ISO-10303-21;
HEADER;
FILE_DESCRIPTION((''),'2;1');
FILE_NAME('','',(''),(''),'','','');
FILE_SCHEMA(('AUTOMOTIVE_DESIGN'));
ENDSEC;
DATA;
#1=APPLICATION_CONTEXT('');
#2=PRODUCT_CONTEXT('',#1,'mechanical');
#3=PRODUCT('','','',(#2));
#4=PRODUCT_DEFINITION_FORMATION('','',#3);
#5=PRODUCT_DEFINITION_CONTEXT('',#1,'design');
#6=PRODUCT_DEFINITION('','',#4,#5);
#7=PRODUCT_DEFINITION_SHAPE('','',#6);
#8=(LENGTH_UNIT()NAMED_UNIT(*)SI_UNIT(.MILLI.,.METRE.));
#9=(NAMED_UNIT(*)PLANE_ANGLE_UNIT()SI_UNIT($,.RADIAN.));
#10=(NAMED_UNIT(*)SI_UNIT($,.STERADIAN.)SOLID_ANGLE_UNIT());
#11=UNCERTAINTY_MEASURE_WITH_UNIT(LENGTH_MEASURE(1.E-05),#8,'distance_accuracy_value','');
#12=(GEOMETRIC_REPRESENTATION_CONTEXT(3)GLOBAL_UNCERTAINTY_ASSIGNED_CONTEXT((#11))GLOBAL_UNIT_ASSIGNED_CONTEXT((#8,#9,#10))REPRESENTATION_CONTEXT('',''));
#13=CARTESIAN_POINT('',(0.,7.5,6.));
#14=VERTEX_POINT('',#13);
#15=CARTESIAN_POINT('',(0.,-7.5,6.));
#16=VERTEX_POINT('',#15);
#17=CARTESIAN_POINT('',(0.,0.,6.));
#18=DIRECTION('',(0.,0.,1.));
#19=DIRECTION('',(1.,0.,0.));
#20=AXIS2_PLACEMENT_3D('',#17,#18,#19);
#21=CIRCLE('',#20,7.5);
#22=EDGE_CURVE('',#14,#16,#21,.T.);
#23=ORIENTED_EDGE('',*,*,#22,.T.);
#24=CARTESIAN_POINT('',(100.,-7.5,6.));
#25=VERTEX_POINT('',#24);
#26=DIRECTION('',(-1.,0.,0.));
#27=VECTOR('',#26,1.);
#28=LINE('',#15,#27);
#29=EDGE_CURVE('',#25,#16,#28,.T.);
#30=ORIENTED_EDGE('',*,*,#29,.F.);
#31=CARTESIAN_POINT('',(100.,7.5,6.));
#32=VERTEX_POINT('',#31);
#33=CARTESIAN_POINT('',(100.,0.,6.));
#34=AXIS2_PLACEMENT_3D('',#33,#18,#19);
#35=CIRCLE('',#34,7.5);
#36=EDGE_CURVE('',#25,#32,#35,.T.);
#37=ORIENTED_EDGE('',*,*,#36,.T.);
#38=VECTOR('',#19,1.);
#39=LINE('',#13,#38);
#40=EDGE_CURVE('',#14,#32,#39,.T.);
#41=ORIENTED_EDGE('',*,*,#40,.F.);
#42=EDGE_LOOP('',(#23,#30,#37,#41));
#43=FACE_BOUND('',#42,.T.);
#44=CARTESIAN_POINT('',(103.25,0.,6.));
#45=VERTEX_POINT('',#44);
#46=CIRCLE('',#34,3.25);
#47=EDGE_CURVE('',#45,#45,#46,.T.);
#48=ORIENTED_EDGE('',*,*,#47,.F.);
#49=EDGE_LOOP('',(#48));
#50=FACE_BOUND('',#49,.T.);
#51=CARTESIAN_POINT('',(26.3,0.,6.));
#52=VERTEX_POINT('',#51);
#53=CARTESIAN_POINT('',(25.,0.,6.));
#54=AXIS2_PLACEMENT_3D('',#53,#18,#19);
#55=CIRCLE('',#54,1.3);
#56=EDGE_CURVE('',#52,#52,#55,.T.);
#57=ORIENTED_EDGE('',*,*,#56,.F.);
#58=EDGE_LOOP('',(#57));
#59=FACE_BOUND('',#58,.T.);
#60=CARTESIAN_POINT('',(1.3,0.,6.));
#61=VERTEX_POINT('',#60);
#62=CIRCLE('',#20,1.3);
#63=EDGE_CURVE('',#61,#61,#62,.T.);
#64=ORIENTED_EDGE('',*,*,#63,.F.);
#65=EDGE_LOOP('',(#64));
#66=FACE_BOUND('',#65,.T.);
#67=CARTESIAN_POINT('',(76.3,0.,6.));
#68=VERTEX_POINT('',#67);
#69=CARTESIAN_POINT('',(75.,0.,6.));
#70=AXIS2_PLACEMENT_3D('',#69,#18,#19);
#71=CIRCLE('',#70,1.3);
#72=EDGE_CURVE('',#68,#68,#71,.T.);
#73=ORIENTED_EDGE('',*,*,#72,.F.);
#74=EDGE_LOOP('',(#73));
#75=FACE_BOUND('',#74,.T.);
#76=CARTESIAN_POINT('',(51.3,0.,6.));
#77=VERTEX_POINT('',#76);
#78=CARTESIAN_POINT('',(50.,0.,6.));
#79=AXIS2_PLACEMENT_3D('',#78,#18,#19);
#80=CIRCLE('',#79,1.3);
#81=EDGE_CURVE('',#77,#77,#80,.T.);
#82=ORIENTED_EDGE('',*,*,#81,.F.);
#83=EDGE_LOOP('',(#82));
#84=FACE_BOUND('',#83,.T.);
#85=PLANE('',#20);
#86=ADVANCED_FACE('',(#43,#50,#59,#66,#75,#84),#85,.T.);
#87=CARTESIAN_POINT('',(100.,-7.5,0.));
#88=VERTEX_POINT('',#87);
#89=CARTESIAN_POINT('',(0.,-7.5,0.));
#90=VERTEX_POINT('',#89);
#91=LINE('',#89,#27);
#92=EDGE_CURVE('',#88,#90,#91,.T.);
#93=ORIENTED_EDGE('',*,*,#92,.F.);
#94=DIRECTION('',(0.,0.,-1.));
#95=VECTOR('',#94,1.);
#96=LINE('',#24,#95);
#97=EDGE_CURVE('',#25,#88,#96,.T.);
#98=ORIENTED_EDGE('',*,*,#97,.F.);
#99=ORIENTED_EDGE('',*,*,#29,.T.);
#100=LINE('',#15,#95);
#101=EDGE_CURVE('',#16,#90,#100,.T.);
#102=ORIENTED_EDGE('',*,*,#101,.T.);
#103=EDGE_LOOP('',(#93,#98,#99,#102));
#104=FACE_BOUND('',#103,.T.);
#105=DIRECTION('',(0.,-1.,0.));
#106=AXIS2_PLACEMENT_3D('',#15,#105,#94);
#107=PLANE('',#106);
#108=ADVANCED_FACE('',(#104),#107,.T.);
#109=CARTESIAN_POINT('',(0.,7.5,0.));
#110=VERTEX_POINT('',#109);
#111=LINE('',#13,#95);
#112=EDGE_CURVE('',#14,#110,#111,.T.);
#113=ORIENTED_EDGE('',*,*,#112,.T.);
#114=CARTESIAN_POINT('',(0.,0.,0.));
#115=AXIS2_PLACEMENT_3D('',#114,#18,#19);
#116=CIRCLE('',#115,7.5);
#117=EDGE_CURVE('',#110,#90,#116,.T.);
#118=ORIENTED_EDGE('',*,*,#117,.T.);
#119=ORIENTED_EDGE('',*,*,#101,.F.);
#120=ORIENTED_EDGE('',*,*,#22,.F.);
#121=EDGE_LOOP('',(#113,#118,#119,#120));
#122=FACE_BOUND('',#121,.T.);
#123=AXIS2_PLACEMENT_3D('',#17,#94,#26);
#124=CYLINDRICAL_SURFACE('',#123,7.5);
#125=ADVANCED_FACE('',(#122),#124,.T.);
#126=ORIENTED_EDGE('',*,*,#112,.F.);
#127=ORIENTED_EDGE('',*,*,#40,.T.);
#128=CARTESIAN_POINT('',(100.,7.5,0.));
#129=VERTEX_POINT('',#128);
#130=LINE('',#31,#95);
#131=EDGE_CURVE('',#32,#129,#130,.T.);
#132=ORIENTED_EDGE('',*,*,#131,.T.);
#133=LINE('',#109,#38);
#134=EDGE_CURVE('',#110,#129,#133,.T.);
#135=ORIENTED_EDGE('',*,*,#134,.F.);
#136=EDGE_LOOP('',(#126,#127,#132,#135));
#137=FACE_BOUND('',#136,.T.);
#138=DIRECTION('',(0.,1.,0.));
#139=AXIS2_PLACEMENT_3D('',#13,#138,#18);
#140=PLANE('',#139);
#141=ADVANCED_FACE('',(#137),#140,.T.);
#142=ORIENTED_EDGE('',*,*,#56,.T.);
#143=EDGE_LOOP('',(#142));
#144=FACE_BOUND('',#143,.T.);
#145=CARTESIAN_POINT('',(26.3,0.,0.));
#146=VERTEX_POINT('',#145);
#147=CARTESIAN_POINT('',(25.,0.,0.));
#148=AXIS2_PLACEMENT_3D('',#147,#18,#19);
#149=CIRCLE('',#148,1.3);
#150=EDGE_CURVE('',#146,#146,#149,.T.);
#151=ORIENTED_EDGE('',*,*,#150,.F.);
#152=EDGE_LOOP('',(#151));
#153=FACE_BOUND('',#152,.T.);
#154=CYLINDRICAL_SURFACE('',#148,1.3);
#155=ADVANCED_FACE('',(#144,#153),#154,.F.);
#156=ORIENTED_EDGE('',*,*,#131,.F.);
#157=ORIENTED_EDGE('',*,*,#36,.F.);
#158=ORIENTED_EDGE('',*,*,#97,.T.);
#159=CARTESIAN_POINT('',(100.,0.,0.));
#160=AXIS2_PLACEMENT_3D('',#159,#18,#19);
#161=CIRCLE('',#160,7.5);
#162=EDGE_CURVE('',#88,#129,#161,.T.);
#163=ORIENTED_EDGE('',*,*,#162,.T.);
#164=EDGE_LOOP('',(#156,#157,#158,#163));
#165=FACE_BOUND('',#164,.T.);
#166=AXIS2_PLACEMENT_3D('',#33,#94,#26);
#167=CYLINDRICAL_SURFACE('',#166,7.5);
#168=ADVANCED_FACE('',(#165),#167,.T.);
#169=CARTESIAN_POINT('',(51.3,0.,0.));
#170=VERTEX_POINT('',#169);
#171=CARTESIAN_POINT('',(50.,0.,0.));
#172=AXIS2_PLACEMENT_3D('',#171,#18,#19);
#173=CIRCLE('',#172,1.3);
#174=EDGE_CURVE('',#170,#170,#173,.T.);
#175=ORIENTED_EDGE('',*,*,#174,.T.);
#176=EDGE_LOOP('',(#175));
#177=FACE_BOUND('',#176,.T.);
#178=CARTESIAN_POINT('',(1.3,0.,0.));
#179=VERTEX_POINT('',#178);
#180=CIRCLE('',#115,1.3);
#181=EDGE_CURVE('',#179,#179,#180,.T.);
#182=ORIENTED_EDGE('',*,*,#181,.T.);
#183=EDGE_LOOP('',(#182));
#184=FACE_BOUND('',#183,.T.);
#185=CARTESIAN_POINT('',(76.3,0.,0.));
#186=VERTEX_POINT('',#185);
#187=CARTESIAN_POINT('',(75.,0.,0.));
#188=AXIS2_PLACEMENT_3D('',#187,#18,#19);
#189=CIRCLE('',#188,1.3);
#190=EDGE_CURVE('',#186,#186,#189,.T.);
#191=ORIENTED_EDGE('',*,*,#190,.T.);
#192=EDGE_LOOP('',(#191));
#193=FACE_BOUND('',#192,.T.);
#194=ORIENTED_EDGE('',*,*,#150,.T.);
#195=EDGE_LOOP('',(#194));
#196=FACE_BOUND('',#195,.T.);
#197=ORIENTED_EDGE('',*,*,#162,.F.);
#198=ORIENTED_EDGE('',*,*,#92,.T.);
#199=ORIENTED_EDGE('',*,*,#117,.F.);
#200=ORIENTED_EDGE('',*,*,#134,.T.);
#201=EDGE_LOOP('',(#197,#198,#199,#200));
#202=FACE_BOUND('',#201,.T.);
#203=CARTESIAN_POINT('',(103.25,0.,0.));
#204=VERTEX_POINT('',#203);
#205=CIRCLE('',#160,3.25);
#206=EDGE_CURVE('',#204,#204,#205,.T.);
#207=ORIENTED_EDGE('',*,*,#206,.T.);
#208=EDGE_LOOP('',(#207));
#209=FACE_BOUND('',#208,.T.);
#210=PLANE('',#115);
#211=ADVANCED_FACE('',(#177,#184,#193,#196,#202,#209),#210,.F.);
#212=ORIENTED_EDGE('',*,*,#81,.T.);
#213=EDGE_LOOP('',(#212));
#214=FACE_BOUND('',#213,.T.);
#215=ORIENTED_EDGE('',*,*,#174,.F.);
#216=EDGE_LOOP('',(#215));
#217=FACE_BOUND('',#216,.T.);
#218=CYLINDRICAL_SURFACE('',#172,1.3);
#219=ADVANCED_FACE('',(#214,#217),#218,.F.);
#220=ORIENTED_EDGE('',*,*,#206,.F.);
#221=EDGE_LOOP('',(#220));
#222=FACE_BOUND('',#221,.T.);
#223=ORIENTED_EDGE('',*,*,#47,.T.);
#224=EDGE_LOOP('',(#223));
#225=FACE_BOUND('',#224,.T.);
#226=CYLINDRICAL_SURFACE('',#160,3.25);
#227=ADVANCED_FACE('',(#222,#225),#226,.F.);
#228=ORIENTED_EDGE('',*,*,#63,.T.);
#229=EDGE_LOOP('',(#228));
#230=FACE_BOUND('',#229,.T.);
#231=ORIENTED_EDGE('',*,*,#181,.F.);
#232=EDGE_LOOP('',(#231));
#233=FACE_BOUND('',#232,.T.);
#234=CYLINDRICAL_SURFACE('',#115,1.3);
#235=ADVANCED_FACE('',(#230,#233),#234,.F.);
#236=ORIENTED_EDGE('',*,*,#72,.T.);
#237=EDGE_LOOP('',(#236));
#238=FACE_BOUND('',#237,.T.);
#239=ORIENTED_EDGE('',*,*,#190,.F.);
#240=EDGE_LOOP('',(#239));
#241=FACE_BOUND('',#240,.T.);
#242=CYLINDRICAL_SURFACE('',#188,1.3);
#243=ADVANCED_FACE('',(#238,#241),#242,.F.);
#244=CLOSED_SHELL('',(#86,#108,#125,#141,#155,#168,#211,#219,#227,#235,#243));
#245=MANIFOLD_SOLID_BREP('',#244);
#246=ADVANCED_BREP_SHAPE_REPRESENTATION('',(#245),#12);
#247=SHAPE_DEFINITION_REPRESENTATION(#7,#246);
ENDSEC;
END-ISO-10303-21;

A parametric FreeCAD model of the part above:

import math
import FreeCAD as App
import Part
import Sketcher

V = App.Vector
Q = App.Units.Quantity

doc = App.newDocument("Part")
body = doc.addObject("PartDesign::Body", "Body")

sketch1 = doc.addObject("Sketcher::SketchObject", "Sketch")
body.addObject(sketch1)
sketch1.AttachmentSupport = (doc.XY_Plane, [""])
sketch1.MapMode = "FlatFace"
sketch1.addGeometry([
    Part.LineSegment(V(100, 7.5, 0), V(0, 7.5, 0)),
    Part.ArcOfCircle(Part.Circle(V(0, 0, 0), V(0, 0, 1), 7.5), math.radians(90), math.radians(270)),
    Part.LineSegment(V(0, -7.5, 0), V(100, -7.5, 0)),
    Part.ArcOfCircle(Part.Circle(V(100, 0, 0), V(0, 0, 1), 7.5), math.radians(-90), math.radians(90)),
], False)
sketch1.addConstraint([
    Sketcher.Constraint("Tangent", 0, 2, 1, 1),
    Sketcher.Constraint("Tangent", 1, 2, 2, 1),
    Sketcher.Constraint("Tangent", 2, 2, 3, 1),
    Sketcher.Constraint("Tangent", 3, 2, 0, 1),
    Sketcher.Constraint("Horizontal", 0),
    Sketcher.Constraint("Horizontal", 2),
    Sketcher.Constraint("Coincident", 1, 3, -1, 1),
    Sketcher.Constraint("Radius", 1, Q("7.5 mm")),
    Sketcher.Constraint("DistanceX", 0, 2, 0, 1, Q("100 mm")),
])
pad1 = doc.addObject("PartDesign::Pad", "Pad")
body.addObject(pad1)
pad1.Profile = sketch1
pad1.Length = 6

sketch2 = doc.addObject("Sketcher::SketchObject", "Sketch001")
body.addObject(sketch2)
sketch2.AttachmentSupport = (doc.XY_Plane, [""])
sketch2.MapMode = "FlatFace"
sketch2.AttachmentOffset = App.Placement(V(0, 0, 6), App.Rotation())
sketch2.addGeometry([
    Part.Circle(V(0, 0, 0), V(0, 0, 1), 1.3),
    Part.Circle(V(100, 0, 0), V(0, 0, 1), 1.3),
], False)
sketch2.addConstraint([
    Sketcher.Constraint("Coincident", 0, 3, -1, 1),
    Sketcher.Constraint("Equal", 0, 1),
    Sketcher.Constraint("PointOnObject", 1, 3, -1),
    Sketcher.Constraint("Diameter", 0, Q("2.6 mm")),
    Sketcher.Constraint("DistanceX", -1, 1, 1, 3, Q("100 mm")),
])
pocket1 = doc.addObject("PartDesign::Pocket", "Pocket")
body.addObject(pocket1)
pocket1.Profile = sketch2
pocket1.Type = "ThroughAll"
doc.recompute()

linearpattern = doc.addObject("PartDesign::LinearPattern", "LinearPattern")
body.addObject(linearpattern)
linearpattern.Originals = [pocket1]
linearpattern.Direction = (doc.X_Axis, [""])
linearpattern.Mode = "offset"
linearpattern.Offset = 25
linearpattern.Occurrences = 4
body.Tip = linearpattern

sketch3 = doc.addObject("Sketcher::SketchObject", "Sketch002")
body.addObject(sketch3)
sketch3.AttachmentSupport = (doc.XY_Plane, [""])
sketch3.MapMode = "FlatFace"
sketch3.AttachmentOffset = App.Placement(V(0, 0, 6), App.Rotation())
sketch3.addGeometry(Part.Circle(V(100, 0, 0), V(0, 0, 1), 3.25), False)
sketch3.addConstraint([
    Sketcher.Constraint("PointOnObject", 0, 3, -1),
    Sketcher.Constraint("Diameter", 0, Q("6.5 mm")),
    Sketcher.Constraint("DistanceX", -1, 1, 0, 3, Q("100 mm")),
])
pocket2 = doc.addObject("PartDesign::Pocket", "Pocket001")
body.addObject(pocket2)
pocket2.Profile = sketch3
pocket2.Type = "ThroughAll"

doc.recompute()
